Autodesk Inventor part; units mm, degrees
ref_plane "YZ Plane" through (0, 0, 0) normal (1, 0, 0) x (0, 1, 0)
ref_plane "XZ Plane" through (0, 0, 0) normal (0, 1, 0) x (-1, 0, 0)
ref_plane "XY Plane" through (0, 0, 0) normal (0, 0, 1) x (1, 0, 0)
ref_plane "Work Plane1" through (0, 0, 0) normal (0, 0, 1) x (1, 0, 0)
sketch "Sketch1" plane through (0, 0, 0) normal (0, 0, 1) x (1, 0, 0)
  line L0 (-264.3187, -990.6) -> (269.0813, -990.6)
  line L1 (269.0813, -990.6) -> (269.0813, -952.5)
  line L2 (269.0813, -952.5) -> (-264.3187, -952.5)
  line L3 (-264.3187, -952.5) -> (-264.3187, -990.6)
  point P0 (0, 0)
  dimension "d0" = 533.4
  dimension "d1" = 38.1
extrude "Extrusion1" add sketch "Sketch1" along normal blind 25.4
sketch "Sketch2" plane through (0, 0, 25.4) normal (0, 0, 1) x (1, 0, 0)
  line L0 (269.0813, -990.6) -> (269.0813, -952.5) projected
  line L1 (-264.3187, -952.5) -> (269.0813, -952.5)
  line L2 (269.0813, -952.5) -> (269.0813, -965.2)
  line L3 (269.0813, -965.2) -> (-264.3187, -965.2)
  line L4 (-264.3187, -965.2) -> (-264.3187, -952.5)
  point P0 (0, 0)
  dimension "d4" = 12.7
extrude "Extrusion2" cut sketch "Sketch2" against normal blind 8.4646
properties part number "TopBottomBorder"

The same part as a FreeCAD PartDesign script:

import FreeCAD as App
import Part
import Sketcher
Q = App.Units.Quantity


def add_polygon(sketch, points):
    """Adds a closed chain of lines whose ends are joined by coincident constraints."""
    first, n = sketch.GeometryCount, len(points)
    for a, b in zip(points, points[1:] + points[:1]):
        sketch.addGeometry(Part.LineSegment(App.Vector(*a, 0), App.Vector(*b, 0)), False)
    for i in range(n):
        sketch.addConstraint(Sketcher.Constraint("Coincident", first + i, 2, first + (i + 1) % n, 1))

doc = App.newDocument("Part")
params = doc.addObject("Spreadsheet::Sheet", "Params")
for row, (alias, value) in enumerate([
    ("sketch1_width", "21 in"),
    ("sketch1_height", "1.5 in"),
    ("pad1_length", "1 in"),
    ("sketch2_height", "0.5 in"),
    ("sketch2_width", "21 in"),
    ("pocket1_length", "8.4646 mm"),
], start=1):
    params.set(f"A{row}", alias)
    params.set(f"B{row}", "=" + value)
    params.setAlias(f"B{row}", alias)

body = doc.addObject("PartDesign::Body", "Body")

sketch1 = body.newObject("Sketcher::SketchObject", "Sketch")
sketch1.AttachmentSupport = (doc.getObject("XY_Plane"), [""])
sketch1.MapMode = "FlatFace"
add_polygon(sketch1, [(-264.3187, -952.5), (-264.3187, -990.6), (269.0813, -990.6), (269.0813, -952.5)])
sketch1.addConstraint([
    Sketcher.Constraint("Vertical", 0),
    Sketcher.Constraint("Horizontal", 1),
    Sketcher.Constraint("Vertical", 2),
    Sketcher.Constraint("Horizontal", 3),
    Sketcher.Constraint("DistanceX", 1, 1, 1, 2, Q("21 in")),
    Sketcher.Constraint("DistanceY", 0, 2, 0, 1, Q("1.5 in")),
    Sketcher.Constraint("DistanceY", 0, 2, -1, 1, Q("39 in")),
    Sketcher.Constraint("DistanceX", 0, 2, -1, 1, Q("10.406248 in")),
])
sketch1.setExpression("Constraints[8]", "Params.sketch1_width")
sketch1.setExpression("Constraints[9]", "Params.sketch1_height")
pad1 = body.newObject("PartDesign::Pad", "Pad")
pad1.Profile = sketch1
pad1.setExpression("Length", "Params.pad1_length")

sketch2 = body.newObject("Sketcher::SketchObject", "Sketch001")
sketch2.AttachmentSupport = (doc.getObject("XY_Plane"), [""])
sketch2.MapMode = "FlatFace"
sketch2.AttachmentOffset = App.Placement(App.Vector(0, 0, 1 * 25.4), App.Rotation())
add_polygon(sketch2, [(-264.3187, -965.2), (269.0813, -965.2), (269.0813, -952.5), (-264.3187, -952.5)])
sketch2.addConstraint([
    Sketcher.Constraint("Horizontal", 0),
    Sketcher.Constraint("Vertical", 1),
    Sketcher.Constraint("Horizontal", 2),
    Sketcher.Constraint("Vertical", 3),
    Sketcher.Constraint("DistanceY", 1, 1, 1, 2, Q("0.5 in")),
    Sketcher.Constraint("DistanceX", 0, 1, 0, 2, Q("21 in")),
    Sketcher.Constraint("DistanceY", 0, 2, -1, 1, Q("38 in")),
    Sketcher.Constraint("DistanceX", -1, 1, 0, 2, Q("10.593752 in")),
])
sketch2.setExpression("Constraints[8]", "Params.sketch2_height")
sketch2.setExpression("Constraints[9]", "Params.sketch2_width")
pocket1 = body.newObject("PartDesign::Pocket", "Pocket")
pocket1.Profile = sketch2
pocket1.setExpression("Length", "Params.pocket1_length")

doc.recompute()
